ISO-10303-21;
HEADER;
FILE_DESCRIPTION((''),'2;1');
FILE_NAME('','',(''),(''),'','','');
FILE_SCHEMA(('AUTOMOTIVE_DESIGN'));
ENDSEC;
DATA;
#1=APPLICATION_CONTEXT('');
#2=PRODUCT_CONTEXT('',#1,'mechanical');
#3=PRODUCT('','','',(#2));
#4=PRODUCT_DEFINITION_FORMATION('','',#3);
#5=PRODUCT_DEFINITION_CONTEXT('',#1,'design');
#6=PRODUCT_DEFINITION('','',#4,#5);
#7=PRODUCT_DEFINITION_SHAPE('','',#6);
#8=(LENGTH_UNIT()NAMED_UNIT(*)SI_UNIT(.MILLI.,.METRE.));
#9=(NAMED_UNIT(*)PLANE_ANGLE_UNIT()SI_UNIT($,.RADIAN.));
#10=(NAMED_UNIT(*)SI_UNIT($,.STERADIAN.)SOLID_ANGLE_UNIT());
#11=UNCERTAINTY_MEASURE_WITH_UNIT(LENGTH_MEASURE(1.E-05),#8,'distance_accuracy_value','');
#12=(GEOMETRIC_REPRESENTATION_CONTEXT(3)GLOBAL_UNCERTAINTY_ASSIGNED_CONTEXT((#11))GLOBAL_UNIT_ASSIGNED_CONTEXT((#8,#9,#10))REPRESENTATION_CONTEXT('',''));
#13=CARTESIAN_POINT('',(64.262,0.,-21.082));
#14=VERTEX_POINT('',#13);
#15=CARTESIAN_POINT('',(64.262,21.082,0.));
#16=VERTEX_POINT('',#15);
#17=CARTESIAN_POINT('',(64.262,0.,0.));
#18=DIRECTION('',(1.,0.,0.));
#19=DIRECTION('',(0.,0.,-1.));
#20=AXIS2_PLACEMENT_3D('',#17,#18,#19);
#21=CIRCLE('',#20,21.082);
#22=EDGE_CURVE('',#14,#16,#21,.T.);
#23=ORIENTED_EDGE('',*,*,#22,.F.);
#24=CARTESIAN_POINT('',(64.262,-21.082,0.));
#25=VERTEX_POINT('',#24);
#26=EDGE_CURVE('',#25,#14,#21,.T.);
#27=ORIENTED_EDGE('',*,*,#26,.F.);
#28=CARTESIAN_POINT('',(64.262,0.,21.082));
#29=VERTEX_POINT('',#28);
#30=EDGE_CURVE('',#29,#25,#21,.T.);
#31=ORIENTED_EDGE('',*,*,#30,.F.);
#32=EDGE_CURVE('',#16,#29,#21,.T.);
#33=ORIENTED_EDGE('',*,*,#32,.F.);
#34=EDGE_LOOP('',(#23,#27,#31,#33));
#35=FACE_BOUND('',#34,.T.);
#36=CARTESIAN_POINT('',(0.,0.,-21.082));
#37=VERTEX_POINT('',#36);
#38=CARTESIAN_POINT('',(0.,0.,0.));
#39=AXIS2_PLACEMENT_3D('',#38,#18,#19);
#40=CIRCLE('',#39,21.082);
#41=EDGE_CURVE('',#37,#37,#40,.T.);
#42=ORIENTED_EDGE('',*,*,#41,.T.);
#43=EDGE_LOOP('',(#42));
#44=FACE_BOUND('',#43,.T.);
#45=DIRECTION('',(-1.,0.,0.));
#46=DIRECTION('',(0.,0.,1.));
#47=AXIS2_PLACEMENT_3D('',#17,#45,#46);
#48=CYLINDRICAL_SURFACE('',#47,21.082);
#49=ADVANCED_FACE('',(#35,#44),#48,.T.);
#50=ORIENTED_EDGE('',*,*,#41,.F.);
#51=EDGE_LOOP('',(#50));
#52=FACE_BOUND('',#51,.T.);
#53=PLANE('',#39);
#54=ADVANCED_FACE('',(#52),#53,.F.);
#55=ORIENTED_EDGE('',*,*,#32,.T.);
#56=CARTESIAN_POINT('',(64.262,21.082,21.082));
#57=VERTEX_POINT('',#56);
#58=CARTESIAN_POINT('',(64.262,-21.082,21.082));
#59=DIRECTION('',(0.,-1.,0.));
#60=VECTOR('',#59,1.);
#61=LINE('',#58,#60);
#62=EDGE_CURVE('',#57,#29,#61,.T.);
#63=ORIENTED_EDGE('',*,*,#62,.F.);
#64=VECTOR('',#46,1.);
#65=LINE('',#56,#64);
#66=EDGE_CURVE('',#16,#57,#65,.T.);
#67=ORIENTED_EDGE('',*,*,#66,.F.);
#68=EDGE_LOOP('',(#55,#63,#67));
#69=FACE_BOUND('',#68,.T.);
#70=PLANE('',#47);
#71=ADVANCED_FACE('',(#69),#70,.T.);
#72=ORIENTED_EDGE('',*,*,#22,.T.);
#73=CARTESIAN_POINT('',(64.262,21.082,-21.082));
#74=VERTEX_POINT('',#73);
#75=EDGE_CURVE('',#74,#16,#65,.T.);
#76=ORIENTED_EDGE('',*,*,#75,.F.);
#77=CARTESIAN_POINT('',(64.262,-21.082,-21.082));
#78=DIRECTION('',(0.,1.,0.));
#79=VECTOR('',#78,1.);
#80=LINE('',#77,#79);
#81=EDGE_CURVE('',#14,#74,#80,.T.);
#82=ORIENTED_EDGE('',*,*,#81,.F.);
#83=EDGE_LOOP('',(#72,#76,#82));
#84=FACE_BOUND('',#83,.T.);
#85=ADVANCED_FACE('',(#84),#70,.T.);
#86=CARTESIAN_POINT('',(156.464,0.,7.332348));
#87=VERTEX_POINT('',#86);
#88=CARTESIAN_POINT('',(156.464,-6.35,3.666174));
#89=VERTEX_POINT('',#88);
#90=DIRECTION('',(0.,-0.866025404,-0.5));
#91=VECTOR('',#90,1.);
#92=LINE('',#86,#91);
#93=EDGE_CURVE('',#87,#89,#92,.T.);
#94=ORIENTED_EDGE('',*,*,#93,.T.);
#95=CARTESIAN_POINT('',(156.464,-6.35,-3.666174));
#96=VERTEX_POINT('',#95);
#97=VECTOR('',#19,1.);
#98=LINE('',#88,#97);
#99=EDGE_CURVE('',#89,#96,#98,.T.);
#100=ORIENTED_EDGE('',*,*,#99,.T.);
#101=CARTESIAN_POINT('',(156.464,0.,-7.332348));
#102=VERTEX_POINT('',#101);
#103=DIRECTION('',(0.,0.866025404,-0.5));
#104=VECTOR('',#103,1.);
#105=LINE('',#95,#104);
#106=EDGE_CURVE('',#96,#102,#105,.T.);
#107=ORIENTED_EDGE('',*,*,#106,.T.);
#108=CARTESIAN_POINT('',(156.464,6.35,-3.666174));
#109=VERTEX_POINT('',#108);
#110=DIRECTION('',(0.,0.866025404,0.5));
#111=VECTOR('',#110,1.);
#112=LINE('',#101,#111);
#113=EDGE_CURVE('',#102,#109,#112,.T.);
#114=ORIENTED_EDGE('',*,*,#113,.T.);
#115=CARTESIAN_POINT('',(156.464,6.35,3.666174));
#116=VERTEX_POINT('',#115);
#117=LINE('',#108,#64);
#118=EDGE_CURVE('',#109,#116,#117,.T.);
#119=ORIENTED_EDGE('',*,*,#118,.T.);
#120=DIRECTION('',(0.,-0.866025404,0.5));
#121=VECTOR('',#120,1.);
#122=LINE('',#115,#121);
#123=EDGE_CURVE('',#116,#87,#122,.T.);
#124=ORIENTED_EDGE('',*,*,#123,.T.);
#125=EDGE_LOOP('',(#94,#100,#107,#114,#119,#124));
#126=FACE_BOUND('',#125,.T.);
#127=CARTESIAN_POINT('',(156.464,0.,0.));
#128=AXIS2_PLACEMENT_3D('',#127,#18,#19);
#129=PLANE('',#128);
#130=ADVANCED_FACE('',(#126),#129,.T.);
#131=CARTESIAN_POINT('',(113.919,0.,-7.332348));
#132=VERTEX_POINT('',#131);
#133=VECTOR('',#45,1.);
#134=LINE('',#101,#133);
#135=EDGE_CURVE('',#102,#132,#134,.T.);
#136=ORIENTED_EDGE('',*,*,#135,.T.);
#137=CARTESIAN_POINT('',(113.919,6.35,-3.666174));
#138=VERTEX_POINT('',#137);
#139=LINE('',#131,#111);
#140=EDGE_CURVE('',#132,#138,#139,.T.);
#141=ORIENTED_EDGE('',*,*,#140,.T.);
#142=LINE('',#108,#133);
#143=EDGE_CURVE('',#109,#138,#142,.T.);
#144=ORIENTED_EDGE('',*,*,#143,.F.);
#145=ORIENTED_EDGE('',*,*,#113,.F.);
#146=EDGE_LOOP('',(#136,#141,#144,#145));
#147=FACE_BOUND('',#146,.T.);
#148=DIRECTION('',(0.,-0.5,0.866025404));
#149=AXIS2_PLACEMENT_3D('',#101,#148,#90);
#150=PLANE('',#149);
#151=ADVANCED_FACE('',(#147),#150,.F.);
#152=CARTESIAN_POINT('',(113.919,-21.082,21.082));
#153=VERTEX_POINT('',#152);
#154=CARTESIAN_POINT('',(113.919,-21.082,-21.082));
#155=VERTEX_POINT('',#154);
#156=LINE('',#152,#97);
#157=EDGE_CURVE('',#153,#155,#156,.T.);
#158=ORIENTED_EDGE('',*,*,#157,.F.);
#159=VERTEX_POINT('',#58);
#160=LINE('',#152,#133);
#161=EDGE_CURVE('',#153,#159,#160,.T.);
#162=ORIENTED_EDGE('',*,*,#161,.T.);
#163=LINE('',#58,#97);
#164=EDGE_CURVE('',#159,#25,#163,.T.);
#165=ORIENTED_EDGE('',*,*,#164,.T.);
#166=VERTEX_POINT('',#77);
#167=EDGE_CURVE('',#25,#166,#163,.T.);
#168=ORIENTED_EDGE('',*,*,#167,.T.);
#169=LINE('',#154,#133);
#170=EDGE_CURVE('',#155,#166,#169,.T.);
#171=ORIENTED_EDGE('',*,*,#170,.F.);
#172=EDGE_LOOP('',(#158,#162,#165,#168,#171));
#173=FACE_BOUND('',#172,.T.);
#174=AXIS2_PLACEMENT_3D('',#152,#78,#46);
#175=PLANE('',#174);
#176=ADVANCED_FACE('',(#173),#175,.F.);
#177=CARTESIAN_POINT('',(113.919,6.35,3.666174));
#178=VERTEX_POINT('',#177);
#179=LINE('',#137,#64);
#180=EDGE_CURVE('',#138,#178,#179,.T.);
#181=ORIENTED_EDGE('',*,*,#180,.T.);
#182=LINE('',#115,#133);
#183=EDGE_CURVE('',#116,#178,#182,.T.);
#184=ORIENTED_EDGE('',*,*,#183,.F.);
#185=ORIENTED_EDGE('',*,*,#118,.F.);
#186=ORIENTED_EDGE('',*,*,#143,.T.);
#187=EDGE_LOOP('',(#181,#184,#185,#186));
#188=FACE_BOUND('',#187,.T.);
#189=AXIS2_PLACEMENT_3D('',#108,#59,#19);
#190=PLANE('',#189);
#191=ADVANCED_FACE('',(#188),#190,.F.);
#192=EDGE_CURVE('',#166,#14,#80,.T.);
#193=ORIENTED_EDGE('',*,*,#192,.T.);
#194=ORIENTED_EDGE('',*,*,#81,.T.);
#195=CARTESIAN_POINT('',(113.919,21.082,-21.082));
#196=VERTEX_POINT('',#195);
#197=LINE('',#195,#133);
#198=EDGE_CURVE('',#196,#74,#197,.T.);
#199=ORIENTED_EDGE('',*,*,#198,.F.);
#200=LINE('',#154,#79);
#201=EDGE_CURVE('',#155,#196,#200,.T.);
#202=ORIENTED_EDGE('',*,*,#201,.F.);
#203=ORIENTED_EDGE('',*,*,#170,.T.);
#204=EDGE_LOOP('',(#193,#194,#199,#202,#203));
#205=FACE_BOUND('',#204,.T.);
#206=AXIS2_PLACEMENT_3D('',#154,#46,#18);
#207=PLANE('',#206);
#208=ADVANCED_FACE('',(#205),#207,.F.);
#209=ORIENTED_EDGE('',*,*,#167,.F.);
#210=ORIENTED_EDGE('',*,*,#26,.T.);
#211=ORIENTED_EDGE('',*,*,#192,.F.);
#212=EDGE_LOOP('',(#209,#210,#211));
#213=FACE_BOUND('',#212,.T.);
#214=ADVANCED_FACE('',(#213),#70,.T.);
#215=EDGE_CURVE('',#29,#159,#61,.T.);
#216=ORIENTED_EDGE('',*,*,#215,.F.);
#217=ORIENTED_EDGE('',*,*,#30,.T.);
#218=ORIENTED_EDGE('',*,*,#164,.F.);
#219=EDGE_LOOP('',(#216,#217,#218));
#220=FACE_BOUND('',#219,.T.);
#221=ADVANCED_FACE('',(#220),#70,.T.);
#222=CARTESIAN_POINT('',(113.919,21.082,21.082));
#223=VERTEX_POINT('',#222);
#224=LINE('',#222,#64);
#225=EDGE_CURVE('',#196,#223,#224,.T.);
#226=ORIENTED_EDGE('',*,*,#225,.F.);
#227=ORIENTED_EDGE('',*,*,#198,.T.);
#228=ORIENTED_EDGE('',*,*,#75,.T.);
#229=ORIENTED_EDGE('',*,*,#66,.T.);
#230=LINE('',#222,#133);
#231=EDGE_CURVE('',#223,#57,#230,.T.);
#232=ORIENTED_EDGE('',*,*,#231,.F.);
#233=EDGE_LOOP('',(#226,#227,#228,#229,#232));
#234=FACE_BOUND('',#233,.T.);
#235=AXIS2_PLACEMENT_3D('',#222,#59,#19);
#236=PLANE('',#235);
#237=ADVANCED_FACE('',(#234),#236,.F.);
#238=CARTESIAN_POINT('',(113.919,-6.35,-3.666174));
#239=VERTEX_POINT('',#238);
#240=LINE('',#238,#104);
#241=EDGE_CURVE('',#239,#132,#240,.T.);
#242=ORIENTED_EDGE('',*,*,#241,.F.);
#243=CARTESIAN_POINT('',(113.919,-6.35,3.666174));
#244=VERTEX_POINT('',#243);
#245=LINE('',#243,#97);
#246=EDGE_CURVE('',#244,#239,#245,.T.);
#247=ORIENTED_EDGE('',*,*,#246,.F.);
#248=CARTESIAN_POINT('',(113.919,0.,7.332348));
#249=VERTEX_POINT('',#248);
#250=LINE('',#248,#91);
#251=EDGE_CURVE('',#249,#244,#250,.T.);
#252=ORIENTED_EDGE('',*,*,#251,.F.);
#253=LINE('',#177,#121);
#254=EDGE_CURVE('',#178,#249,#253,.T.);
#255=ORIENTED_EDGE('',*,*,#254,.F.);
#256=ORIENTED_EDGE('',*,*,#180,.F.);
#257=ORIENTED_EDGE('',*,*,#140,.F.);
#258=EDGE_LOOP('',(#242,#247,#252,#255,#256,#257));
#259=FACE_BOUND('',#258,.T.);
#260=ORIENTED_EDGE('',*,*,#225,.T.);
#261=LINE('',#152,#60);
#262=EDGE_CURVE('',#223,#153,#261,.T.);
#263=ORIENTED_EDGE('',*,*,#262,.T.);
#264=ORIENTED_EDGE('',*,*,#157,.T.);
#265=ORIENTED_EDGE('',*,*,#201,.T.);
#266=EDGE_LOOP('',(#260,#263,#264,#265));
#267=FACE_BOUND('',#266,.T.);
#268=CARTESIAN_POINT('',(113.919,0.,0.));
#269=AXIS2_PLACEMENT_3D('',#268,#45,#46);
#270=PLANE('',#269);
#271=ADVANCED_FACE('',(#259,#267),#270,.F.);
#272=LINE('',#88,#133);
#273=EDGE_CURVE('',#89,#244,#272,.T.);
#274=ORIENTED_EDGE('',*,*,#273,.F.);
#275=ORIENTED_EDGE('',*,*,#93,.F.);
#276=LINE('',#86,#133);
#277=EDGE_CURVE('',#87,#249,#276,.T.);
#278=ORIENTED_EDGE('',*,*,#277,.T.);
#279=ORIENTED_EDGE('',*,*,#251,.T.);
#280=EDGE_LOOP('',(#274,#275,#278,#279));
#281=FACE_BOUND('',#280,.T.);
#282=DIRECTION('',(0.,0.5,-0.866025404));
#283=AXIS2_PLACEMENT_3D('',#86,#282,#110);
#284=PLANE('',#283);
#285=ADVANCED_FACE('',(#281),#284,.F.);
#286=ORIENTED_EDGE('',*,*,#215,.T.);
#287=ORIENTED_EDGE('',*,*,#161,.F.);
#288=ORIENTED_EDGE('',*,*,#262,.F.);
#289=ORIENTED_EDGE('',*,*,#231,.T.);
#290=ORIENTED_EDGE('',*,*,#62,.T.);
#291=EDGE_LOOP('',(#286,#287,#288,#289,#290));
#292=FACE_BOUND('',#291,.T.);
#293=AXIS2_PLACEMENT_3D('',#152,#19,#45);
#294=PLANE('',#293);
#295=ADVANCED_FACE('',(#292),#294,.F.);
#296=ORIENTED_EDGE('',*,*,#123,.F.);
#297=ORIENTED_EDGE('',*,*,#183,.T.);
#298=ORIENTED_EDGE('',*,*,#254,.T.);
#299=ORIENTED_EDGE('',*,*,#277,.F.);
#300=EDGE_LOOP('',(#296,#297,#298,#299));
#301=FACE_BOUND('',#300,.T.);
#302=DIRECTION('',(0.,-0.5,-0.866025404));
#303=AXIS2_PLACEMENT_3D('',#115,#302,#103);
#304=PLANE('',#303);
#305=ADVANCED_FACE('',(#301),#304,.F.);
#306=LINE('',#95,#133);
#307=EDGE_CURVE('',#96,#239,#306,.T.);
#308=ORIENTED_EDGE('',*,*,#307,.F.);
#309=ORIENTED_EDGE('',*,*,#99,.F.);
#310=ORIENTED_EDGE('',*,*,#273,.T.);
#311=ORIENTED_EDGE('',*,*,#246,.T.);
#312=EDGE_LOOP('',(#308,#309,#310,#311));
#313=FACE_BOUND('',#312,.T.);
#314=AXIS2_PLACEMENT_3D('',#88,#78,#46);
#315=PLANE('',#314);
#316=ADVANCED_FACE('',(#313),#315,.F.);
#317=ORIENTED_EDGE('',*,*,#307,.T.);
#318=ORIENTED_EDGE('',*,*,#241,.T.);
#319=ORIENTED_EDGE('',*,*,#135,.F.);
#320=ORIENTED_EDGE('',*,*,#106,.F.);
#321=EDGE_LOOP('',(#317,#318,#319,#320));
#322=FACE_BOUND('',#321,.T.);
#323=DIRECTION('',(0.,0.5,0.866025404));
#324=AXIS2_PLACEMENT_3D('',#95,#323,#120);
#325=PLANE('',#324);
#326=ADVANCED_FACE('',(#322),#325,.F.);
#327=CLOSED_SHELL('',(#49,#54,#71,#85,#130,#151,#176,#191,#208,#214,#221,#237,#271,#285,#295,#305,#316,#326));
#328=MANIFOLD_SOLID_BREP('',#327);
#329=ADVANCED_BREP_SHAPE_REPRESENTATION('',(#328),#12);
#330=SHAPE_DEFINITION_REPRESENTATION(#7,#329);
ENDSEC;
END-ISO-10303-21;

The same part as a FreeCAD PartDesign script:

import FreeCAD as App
import Part
import Sketcher
from FreeCAD import Vector
Q = App.Units.Quantity

doc = App.newDocument("Part")
params = doc.addObject("Spreadsheet::Sheet", "Params")
for row, (alias, value) in enumerate([
    ("sketch1_diameter", "1.66 in"),
    ("pad1_length", "2.53 in"),
    ("sketch2_width", "1.66 in"),
    ("pad2_length", "1.955 in"),
    ("pad3_length", "1.675 in"),
], start=1):
    params.set(f"A{row}", alias)
    params.set(f"B{row}", "=" + value)
    params.setAlias(f"B{row}", alias)

body = doc.addObject("PartDesign::Body", "Body")

# Sketch on YZ plane
sketch1 = body.newObject("Sketcher::SketchObject", "Sketch")
sketch1.AttachmentSupport = (doc.getObject("YZ_Plane"), [""])
sketch1.MapMode = "FlatFace"
sketch1.addGeometry(Part.Circle(Vector(0, 0, 0), Vector(0, 0, 1), 21.082), False)
sketch1.addConstraint([
    Sketcher.Constraint("Coincident", 0, 3, -1, 1),
    Sketcher.Constraint("Diameter", 0, Q("1.66 in")),
])
sketch1.setExpression("Constraints[1]", "Params.sketch1_diameter")
pad1 = body.newObject("PartDesign::Pad", "Pad")
pad1.Profile = sketch1
pad1.setExpression("Length", "Params.pad1_length")

# Sketch on YZ plane
sketch2 = body.newObject("Sketcher::SketchObject", "Sketch001")
sketch2.AttachmentSupport = (doc.getObject("YZ_Plane"), [""])
sketch2.MapMode = "FlatFace"
sketch2.AttachmentOffset = App.Placement(Vector(0, 0, 2.53 * 25.4), App.Rotation())
sketch2.addGeometry([
    Part.LineSegment(Vector(21.082, 21.082, 0), Vector(-21.082, 21.082, 0)),
    Part.LineSegment(Vector(-21.082, 21.082, 0), Vector(-21.082, -21.082, 0)),
    Part.LineSegment(Vector(-21.082, -21.082, 0), Vector(21.082, -21.082, 0)),
    Part.LineSegment(Vector(21.082, -21.082, 0), Vector(21.082, 21.082, 0)),
], False)
sketch2.addConstraint([
    Sketcher.Constraint("Coincident", 0, 2, 1, 1),
    Sketcher.Constraint("Coincident", 1, 2, 2, 1),
    Sketcher.Constraint("Coincident", 2, 2, 3, 1),
    Sketcher.Constraint("Coincident", 3, 2, 0, 1),
    Sketcher.Constraint("Horizontal", 0),
    Sketcher.Constraint("Vertical", 1),
    Sketcher.Constraint("Horizontal", 2),
    Sketcher.Constraint("Vertical", 3),
    Sketcher.Constraint("Symmetric", 0, 2, 2, 2, -1, 1),
    Sketcher.Constraint("Equal", 2, 1),
    Sketcher.Constraint("DistanceX", 0, 2, 0, 1, Q("1.66 in")),
])
sketch2.setExpression("Constraints[10]", "Params.sketch2_width")
pad2 = body.newObject("PartDesign::Pad", "Pad001")
pad2.Profile = sketch2
pad2.setExpression("Length", "Params.pad2_length")

# Sketch on YZ plane
sketch3 = body.newObject("Sketcher::SketchObject", "Sketch002")
sketch3.AttachmentSupport = (doc.getObject("YZ_Plane"), [""])
sketch3.MapMode = "FlatFace"
sketch3.AttachmentOffset = App.Placement(Vector(0, 0, 4.485 * 25.4), App.Rotation())
sketch3.addGeometry([
    Part.LineSegment(Vector(0, -7.332348, 0), Vector(6.35, -3.666174, 0)),  # 0
    Part.LineSegment(Vector(6.35, -3.666174, 0), Vector(6.35, 3.666174, 0)),  # 1
    Part.LineSegment(Vector(6.35, 3.666174, 0), Vector(0, 7.332348, 0)),  # 2
    Part.LineSegment(Vector(0, 7.332348, 0), Vector(-6.35, 3.666174, 0)),  # 3
    Part.LineSegment(Vector(-6.35, 3.666174, 0), Vector(-6.35, -3.666174, 0)),  # 4
    Part.LineSegment(Vector(-6.35, -3.666174, 0), Vector(0, -7.332348, 0)),  # 5
], False)
sketch3.addConstraint([
    Sketcher.Constraint("Coincident", 0, 2, 1, 1),
    Sketcher.Constraint("Coincident", 1, 2, 2, 1),
    Sketcher.Constraint("Coincident", 2, 2, 3, 1),
    Sketcher.Constraint("Coincident", 3, 2, 4, 1),
    Sketcher.Constraint("Coincident", 4, 2, 5, 1),
    Sketcher.Constraint("Coincident", 5, 2, 0, 1),
    Sketcher.Constraint("Vertical", 1),
    Sketcher.Constraint("Vertical", 4),
    Sketcher.Constraint("Symmetric", 0, 2, 3, 2, -1, 1),
    Sketcher.Constraint("Symmetric", 2, 2, 5, 2, -1, 1),
    Sketcher.Constraint("PointOnObject", 2, 2, -2),
    Sketcher.Constraint("Parallel", 2, 5),
    Sketcher.Constraint("Horizontal", 1, 2, 3, 2),
    Sketcher.Constraint("Angle", 0, Q("30 deg")),
    Sketcher.Constraint("DistanceX", 3, 2, 1, 2, Q("0.5 in")),
    Sketcher.Constraint("DistanceY", 1, 1, 1, 2, Q("7.332348 mm")),
])
pad3 = body.newObject("PartDesign::Pad", "Pad002")
pad3.Profile = sketch3
pad3.setExpression("Length", "Params.pad3_length")

doc.recompute()
